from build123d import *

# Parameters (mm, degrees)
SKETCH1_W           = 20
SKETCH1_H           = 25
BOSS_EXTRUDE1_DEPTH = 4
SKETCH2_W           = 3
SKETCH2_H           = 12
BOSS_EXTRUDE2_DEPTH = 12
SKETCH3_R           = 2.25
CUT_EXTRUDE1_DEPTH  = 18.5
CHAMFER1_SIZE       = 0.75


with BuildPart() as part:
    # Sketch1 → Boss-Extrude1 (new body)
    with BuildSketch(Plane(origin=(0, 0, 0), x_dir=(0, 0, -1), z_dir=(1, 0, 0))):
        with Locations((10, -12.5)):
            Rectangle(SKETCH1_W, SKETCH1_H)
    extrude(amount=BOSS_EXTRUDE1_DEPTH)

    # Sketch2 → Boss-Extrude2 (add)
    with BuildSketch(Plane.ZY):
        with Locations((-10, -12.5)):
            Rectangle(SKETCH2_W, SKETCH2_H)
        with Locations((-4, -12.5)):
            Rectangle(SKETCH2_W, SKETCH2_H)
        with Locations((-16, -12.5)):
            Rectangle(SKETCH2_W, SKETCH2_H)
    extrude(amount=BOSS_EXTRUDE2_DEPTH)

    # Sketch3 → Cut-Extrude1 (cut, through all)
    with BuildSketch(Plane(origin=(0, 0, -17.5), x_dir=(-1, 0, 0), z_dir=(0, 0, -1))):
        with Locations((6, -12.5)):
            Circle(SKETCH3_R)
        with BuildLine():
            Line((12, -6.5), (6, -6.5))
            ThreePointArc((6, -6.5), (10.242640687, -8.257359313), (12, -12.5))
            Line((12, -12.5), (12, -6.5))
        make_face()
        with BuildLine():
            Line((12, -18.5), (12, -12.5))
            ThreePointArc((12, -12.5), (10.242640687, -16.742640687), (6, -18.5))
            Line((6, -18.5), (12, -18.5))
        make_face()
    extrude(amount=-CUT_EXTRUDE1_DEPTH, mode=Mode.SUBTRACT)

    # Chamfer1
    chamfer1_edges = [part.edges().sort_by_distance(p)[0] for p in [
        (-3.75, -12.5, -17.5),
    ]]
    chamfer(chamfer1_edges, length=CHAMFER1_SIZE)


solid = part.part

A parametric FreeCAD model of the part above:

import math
import FreeCAD as App
import Part
import Sketcher

V = App.Vector
Q = App.Units.Quantity


def edges_at(feature, points):
    """Names of the edges that pass closest to the given points."""
    edges = feature.Shape.Edges
    near = lambda p: min(range(len(edges)), key=lambda i: edges[i].distToShape(Part.Vertex(*p))[0])
    return sorted({f"Edge{near(p) + 1}" for p in points})


def add_polygon(sketch, points):
    """Adds a closed chain of lines whose ends are joined by coincident constraints."""
    first, n = sketch.GeometryCount, len(points)
    for a, b in zip(points, points[1:] + points[:1]):
        sketch.addGeometry(Part.LineSegment(App.Vector(*a, 0), App.Vector(*b, 0)), False)
    for i in range(n):
        sketch.addConstraint(Sketcher.Constraint("Coincident", first + i, 2, first + (i + 1) % n, 1))

doc = App.newDocument("Part")
body = doc.addObject("PartDesign::Body", "Body")

# Sketch on YZ plane
sketch1 = body.newObject("Sketcher::SketchObject", "Sketch")
sketch1.AttachmentSupport = (doc.getObject("YZ_Plane"), [""])
sketch1.MapMode = "FlatFace"
add_polygon(sketch1, [(0, 0), (-25, 0), (-25, -20), (0, -20)])  # lines 0-3
sketch1.addConstraint([
    Sketcher.Constraint("Horizontal", 0),
    Sketcher.Constraint("Vertical", 1),
    Sketcher.Constraint("Horizontal", 2),
    Sketcher.Constraint("Vertical", 3),
    Sketcher.Constraint("Coincident", 3, 2, -1, 1),
    Sketcher.Constraint("DistanceX", 0, 2, 0, 1, Q("25 mm")),
    Sketcher.Constraint("DistanceY", 1, 2, 1, 1, Q("20 mm")),
])
pad1 = body.newObject("PartDesign::Pad", "Pad")
pad1.Profile = sketch1
pad1.Length = 4

# Sketch on YZ plane
sketch2 = body.newObject("Sketcher::SketchObject", "Sketch001")
sketch2.AttachmentSupport = (doc.getObject("YZ_Plane"), [""])
sketch2.MapMode = "FlatFace"
add_polygon(sketch2, [(-6.5, -11.5), (-18.5, -11.5), (-18.5, -8.5), (-6.5, -8.5)])  # lines 0-3
add_polygon(sketch2, [(-6.5, -5.5), (-18.5, -5.5), (-18.5, -2.5), (-6.5, -2.5)])  # lines 4-7
add_polygon(sketch2, [(-6.5, -17.5), (-18.5, -17.5), (-18.5, -14.5), (-6.5, -14.5)])  # lines 8-11
sketch2.addConstraint([
    Sketcher.Constraint("Horizontal", 0),
    Sketcher.Constraint("Vertical", 1),
    Sketcher.Constraint("Horizontal", 2),
    Sketcher.Constraint("Vertical", 3),
    Sketcher.Constraint("Horizontal", 4),
    Sketcher.Constraint("Vertical", 5),
    Sketcher.Constraint("Horizontal", 6),
    Sketcher.Constraint("Vertical", 7),
    Sketcher.Constraint("Horizontal", 8),
    Sketcher.Constraint("Vertical", 9),
    Sketcher.Constraint("Horizontal", 10),
    Sketcher.Constraint("Vertical", 11),
    Sketcher.Constraint("Vertical", 1, 2, 4, 2),
    Sketcher.Constraint("Vertical", 3, 2, 6, 2),
    Sketcher.Constraint("Vertical", 5, 2, 8, 2),
    Sketcher.Constraint("Vertical", 7, 2, 10, 2),
    Sketcher.Constraint("Equal", 3, 5),
    Sketcher.Constraint("Equal", 7, 9),
    Sketcher.Constraint("DistanceX", 0, 2, 0, 1, Q("12 mm")),
    Sketcher.Constraint("DistanceY", 1, 1, 1, 2, Q("3 mm")),
    Sketcher.Constraint("DistanceY", 1, 2, 4, 2, Q("3 mm")),
    Sketcher.Constraint("DistanceY", 8, 2, 0, 2, Q("6 mm")),
    Sketcher.Constraint("DistanceX", 0, 2, -1, 1, Q("18.5 mm")),
    Sketcher.Constraint("DistanceY", 0, 2, -1, 1, Q("11.5 mm")),
])
pad2 = body.newObject("PartDesign::Pad", "Pad001")
pad2.Profile = sketch2
pad2.Length = 12
pad2.Reversed = True

# Sketch on XY plane
sketch3 = body.newObject("Sketcher::SketchObject", "Sketch002")
sketch3.AttachmentSupport = (doc.getObject("XY_Plane"), [""])
sketch3.MapMode = "FlatFace"
sketch3.AttachmentOffset = App.Placement(V(0, 0, -17.5), App.Rotation())
sketch3.addGeometry([
    Part.Circle(V(-6, -12.5, 0), V(0, 0, 1), 2.2),  # 0
    Part.LineSegment(V(-12, -6.5, 0), V(-6, -6.5, 0)),  # 1
    Part.ArcOfCircle(Part.Circle(V(-6, -12.5, 0), V(0, 0, 1), 6), math.radians(90), math.radians(180)),  # 2
    Part.LineSegment(V(-12, -12.5, 0), V(-12, -6.5, 0)),  # 3
    Part.LineSegment(V(-12, -18.5, 0), V(-12, -12.5, 0)),  # 4
    Part.ArcOfCircle(Part.Circle(V(-6, -12.5, 0), V(0, 0, 1), 6), math.radians(180), math.radians(270)),  # 5
    Part.LineSegment(V(-6, -18.5, 0), V(-12, -18.5, 0)),  # 6
], False)
sketch3.addConstraint([
    Sketcher.Constraint("Tangent", 1, 2, 2, 1),
    Sketcher.Constraint("Tangent", 2, 2, 3, 1),
    Sketcher.Constraint("Coincident", 3, 2, 1, 1),
    Sketcher.Constraint("Tangent", 4, 2, 5, 1),
    Sketcher.Constraint("Tangent", 5, 2, 6, 1),
    Sketcher.Constraint("Coincident", 6, 2, 4, 1),
    Sketcher.Constraint("Horizontal", 1),
    Sketcher.Constraint("Vertical", 3),
    Sketcher.Constraint("Vertical", 4),
    Sketcher.Constraint("Horizontal", 6),
    Sketcher.Constraint("Coincident", 2, 3, 0, 3),
    Sketcher.Constraint("Coincident", 5, 3, 0, 3),
    Sketcher.Constraint("Equal", 2, 5),
    Sketcher.Constraint("Radius", 2, Q("6 mm")),
    Sketcher.Constraint("Diameter", 0, Q("4.5 mm")),
    Sketcher.Constraint("DistanceX", 0, 3, -1, 1, Q("6 mm")),
    Sketcher.Constraint("DistanceY", 0, 3, -1, 1, Q("12.5 mm")),
])
pocket1 = body.newObject("PartDesign::Pocket", "Pocket")
pocket1.Profile = sketch3
pocket1.Type = "ThroughAll"
pocket1.Reversed = True
doc.recompute()

chamfer = body.newObject("PartDesign::Chamfer", "Chamfer")
chamfer.Base = (pocket1, edges_at(pocket1, [(-3.75, -12.5, -17.5)]))
chamfer.Size = 0.75

doc.recompute()
